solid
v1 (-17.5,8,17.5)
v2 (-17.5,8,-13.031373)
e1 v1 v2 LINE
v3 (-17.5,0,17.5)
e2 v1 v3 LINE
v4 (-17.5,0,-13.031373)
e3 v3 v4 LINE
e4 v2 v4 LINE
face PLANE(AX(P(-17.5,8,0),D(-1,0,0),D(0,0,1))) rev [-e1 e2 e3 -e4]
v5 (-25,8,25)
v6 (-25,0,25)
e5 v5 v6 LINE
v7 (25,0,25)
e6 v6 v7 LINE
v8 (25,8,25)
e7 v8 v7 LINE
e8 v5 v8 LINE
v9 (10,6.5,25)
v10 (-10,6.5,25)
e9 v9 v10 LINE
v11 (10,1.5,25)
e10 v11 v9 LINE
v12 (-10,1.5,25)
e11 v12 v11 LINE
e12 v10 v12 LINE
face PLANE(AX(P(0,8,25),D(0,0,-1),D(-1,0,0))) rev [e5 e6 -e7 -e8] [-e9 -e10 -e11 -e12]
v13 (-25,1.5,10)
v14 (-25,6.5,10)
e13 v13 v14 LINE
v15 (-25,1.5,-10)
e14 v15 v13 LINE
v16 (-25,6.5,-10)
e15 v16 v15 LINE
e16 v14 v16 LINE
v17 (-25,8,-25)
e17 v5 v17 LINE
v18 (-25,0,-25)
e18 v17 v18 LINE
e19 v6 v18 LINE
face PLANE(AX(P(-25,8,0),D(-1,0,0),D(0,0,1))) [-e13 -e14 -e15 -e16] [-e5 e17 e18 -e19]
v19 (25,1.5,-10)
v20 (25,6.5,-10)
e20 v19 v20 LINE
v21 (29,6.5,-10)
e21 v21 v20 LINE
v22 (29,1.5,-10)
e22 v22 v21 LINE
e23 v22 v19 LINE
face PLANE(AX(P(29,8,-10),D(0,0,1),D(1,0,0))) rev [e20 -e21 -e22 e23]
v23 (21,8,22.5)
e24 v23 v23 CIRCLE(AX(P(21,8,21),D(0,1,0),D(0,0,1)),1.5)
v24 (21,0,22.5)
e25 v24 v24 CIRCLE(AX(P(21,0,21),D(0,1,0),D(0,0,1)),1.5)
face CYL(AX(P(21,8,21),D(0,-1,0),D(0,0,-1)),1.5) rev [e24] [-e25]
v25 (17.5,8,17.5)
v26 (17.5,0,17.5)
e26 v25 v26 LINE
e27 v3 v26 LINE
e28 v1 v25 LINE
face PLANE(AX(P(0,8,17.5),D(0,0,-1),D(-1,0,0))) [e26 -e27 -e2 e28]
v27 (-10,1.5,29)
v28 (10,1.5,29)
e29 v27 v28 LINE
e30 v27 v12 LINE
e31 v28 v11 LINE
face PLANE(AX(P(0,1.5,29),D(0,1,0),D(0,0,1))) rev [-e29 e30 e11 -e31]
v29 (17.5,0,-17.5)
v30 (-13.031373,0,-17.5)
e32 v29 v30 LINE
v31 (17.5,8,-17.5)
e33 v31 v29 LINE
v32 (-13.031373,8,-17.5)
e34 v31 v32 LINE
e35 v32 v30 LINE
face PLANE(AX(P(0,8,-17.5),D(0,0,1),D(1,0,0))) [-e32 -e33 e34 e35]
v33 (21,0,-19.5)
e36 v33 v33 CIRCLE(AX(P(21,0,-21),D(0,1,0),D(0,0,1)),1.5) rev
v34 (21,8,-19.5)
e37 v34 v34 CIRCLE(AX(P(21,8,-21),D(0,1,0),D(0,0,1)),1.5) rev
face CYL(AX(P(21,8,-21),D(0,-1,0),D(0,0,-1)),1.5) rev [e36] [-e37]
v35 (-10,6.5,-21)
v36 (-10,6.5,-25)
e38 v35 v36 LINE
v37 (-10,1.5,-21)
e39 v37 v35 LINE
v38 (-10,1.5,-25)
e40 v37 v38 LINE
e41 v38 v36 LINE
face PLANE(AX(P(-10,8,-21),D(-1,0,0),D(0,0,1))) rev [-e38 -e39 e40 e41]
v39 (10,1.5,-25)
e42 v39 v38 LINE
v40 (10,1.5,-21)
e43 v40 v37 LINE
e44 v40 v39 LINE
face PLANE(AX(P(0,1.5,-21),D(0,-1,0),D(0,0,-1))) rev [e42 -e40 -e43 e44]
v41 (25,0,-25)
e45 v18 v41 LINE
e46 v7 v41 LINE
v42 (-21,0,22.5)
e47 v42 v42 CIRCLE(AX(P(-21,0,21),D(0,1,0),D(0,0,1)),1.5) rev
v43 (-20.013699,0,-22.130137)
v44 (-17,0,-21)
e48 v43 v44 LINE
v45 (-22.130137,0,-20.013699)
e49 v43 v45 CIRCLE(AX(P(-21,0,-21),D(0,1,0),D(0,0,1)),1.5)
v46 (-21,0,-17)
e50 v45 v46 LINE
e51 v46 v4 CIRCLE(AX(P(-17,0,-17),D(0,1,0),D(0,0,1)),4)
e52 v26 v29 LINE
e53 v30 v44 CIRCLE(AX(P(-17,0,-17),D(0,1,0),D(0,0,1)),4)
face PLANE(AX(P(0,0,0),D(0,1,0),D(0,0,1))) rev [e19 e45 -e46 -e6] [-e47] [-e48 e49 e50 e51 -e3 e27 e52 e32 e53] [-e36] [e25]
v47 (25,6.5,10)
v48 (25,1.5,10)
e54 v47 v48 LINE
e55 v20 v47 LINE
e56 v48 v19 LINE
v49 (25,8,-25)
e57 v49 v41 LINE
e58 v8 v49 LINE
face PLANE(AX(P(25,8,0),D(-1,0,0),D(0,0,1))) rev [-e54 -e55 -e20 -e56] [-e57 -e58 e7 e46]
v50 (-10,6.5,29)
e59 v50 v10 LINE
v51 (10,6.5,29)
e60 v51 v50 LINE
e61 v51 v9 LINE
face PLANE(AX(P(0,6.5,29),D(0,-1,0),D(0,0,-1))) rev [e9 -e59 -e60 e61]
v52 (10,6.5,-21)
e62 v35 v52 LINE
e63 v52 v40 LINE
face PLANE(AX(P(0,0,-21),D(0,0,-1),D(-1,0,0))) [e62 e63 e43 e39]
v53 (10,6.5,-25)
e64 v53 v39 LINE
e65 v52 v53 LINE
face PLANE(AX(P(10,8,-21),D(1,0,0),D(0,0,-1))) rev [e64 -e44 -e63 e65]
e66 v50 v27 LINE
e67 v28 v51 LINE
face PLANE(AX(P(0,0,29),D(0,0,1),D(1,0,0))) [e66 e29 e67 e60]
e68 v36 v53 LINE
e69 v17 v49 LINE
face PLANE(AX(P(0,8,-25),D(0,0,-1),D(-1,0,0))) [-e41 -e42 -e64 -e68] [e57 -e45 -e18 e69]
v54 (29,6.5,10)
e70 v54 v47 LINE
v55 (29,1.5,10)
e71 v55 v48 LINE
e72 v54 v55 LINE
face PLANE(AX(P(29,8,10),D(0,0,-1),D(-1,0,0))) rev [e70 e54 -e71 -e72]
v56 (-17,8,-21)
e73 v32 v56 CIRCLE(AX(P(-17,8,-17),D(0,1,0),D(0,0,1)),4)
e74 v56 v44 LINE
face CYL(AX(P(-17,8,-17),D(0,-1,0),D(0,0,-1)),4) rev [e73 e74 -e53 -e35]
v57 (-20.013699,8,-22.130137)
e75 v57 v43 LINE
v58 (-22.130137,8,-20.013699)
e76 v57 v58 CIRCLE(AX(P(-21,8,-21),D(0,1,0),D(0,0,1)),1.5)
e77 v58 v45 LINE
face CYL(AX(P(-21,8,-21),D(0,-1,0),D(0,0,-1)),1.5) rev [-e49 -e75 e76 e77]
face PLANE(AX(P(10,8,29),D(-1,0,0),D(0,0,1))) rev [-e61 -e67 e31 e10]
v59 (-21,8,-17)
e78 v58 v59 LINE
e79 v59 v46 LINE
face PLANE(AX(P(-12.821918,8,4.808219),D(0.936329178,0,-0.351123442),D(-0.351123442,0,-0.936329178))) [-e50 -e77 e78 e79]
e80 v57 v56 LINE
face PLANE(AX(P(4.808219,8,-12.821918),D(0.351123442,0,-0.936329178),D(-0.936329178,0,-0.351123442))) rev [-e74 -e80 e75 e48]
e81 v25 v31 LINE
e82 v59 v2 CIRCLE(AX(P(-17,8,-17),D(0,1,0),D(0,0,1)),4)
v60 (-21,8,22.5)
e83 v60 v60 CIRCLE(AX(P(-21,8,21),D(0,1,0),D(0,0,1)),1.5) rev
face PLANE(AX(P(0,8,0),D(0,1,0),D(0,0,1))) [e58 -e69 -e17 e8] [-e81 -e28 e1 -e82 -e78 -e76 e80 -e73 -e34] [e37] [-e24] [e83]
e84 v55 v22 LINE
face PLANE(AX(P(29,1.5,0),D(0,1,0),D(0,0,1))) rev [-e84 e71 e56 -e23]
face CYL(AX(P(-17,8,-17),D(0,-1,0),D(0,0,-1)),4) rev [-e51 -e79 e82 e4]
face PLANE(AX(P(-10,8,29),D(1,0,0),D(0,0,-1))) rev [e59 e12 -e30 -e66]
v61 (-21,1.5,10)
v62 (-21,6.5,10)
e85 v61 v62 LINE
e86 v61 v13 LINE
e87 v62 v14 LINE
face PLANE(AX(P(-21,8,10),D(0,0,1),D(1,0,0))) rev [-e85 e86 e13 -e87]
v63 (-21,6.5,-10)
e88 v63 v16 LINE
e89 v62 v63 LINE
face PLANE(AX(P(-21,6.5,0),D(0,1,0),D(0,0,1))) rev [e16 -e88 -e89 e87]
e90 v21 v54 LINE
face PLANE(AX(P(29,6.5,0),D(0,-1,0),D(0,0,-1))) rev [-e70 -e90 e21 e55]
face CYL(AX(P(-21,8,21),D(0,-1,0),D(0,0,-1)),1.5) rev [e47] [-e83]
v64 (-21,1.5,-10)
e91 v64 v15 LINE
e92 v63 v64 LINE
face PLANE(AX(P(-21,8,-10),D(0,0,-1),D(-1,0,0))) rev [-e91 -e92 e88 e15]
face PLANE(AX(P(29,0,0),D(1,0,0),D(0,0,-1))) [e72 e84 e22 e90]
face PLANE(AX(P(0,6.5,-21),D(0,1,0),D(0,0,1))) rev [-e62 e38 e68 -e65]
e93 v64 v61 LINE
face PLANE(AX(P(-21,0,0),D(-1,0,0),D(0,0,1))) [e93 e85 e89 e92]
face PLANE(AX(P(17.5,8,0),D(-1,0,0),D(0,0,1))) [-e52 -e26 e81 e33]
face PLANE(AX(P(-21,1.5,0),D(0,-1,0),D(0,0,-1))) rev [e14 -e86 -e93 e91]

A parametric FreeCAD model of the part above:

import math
import FreeCAD as App
import Part
import Sketcher
from FreeCAD import Vector
Q = App.Units.Quantity


def add_polygon(sketch, points):
    """Adds a closed chain of lines whose ends are joined by coincident constraints."""
    first, n = sketch.GeometryCount, len(points)
    for a, b in zip(points, points[1:] + points[:1]):
        sketch.addGeometry(Part.LineSegment(App.Vector(*a, 0), App.Vector(*b, 0)), False)
    for i in range(n):
        sketch.addConstraint(Sketcher.Constraint("Coincident", first + i, 2, first + (i + 1) % n, 1))

doc = App.newDocument("Part")
body = doc.addObject("PartDesign::Body", "Body")

sketch1 = body.newObject("Sketcher::SketchObject", "Sketch")
sketch1.AttachmentSupport = (doc.getObject("XZ_Plane"), [""])
sketch1.MapMode = "FlatFace"
add_polygon(sketch1, [(-25, -25), (-25, 25), (25, 25), (25, -25)])
sketch1.addGeometry(Part.Circle(Vector(-21, 21, 0), Vector(0, 0, 1), 1.5), False)
sketch1.addGeometry(Part.Circle(Vector(21, 21, 0), Vector(0, 0, 1), 1.5), False)
sketch1.addGeometry(Part.ArcOfCircle(Part.Circle(Vector(-17, -17, 0), Vector(0, 0, 1), 4), math.radians(-90), math.radians(-7.180756)), False)
sketch1.addGeometry(Part.LineSegment(Vector(-13.031373, -17.5, 0), Vector(17.5, -17.5, 0)), False)
sketch1.addGeometry(Part.LineSegment(Vector(17.5, -17.5, 0), Vector(17.5, 17.5, 0)), False)
sketch1.addGeometry(Part.LineSegment(Vector(17.5, 17.5, 0), Vector(-17.5, 17.5, 0)), False)
sketch1.addGeometry(Part.LineSegment(Vector(-17.5, 17.5, 0), Vector(-17.5, -13.031373, 0)), False)
sketch1.addGeometry(Part.ArcOfCircle(Part.Circle(Vector(-17, -17, 0), Vector(0, 0, 1), 4), math.radians(97.180756), math.radians(180)), False)
sketch1.addGeometry(Part.LineSegment(Vector(-21, -17, 0), Vector(-22.130137, -20.013699, 0)), False)
sketch1.addGeometry(Part.ArcOfCircle(Part.Circle(Vector(-21, -21, 0), Vector(0, 0, 1), 1.5), math.radians(138.88791), math.radians(311.11209)), False)
sketch1.addGeometry(Part.LineSegment(Vector(-20.013699, -22.130137, 0), Vector(-17, -21, 0)), False)
sketch1.addGeometry(Part.Circle(Vector(21, -21, 0), Vector(0, 0, 1), 1.5), False)
sketch1.addConstraint(Sketcher.Constraint("Coincident", 6, 2, 7, 1))
sketch1.addConstraint(Sketcher.Constraint("Coincident", 7, 2, 8, 1))
sketch1.addConstraint(Sketcher.Constraint("Coincident", 8, 2, 9, 1))
sketch1.addConstraint(Sketcher.Constraint("Coincident", 9, 2, 10, 1))
sketch1.addConstraint(Sketcher.Constraint("Coincident", 10, 2, 11, 1))
sketch1.addConstraint(Sketcher.Constraint("Coincident", 11, 2, 12, 1))
sketch1.addConstraint(Sketcher.Constraint("Coincident", 12, 2, 13, 1))
sketch1.addConstraint(Sketcher.Constraint("Coincident", 13, 2, 14, 1))
sketch1.addConstraint(Sketcher.Constraint("Coincident", 14, 2, 6, 1))
sketch1.addConstraint(Sketcher.Constraint("Vertical", 0))
sketch1.addConstraint(Sketcher.Constraint("Horizontal", 1))
sketch1.addConstraint(Sketcher.Constraint("Vertical", 2))
sketch1.addConstraint(Sketcher.Constraint("Horizontal", 3))
sketch1.addConstraint(Sketcher.Constraint("Horizontal", 7))
sketch1.addConstraint(Sketcher.Constraint("Vertical", 8))
sketch1.addConstraint(Sketcher.Constraint("Horizontal", 9))
sketch1.addConstraint(Sketcher.Constraint("Vertical", 10))
sketch1.addConstraint(Sketcher.Constraint("Coincident", 11, 3, 6, 3))
sketch1.addConstraint(Sketcher.Constraint("Equal", 4, 5))
sketch1.addConstraint(Sketcher.Constraint("Equal", 6, 11))
sketch1.addConstraint(Sketcher.Constraint("Equal", 5, 13))
sketch1.addConstraint(Sketcher.Constraint("Equal", 13, 15))
sketch1.addConstraint(Sketcher.Constraint("Symmetric", 5, 3, 13, 3, -1, 1))
sketch1.addConstraint(Sketcher.Constraint("Symmetric", 4, 3, 15, 3, -1, 1))
sketch1.addConstraint(Sketcher.Constraint("Symmetric", 0, 2, 2, 2, -1, 1))
sketch1.addConstraint(Sketcher.Constraint("Symmetric", 7, 2, 9, 2, -1, 1))
sketch1.addConstraint(Sketcher.Constraint("Symmetric", 4, 3, 5, 3, -2))
sketch1.addConstraint(Sketcher.Constraint("Horizontal", 6, 3, 11, 2))
sketch1.addConstraint(Sketcher.Constraint("Horizontal", 15, 3, 14, 2))
sketch1.addConstraint(Sketcher.Constraint("Vertical", 13, 3, 11, 2))
sketch1.addConstraint(Sketcher.Constraint("Vertical", 11, 3, 14, 2))
sketch1.addConstraint(Sketcher.Constraint("Equal", 3, 0))
sketch1.addConstraint(Sketcher.Constraint("Equal", 9, 8))
sketch1.addConstraint(Sketcher.Constraint("Equal", 7, 10))
sketch1.addConstraint(Sketcher.Constraint("Equal", 12, 14))
sketch1.addConstraint(Sketcher.Constraint("Diameter", 4, Q("3 mm")))
sketch1.addConstraint(Sketcher.Constraint("Radius", 6, Q("4 mm")))
sketch1.addConstraint(Sketcher.Constraint("DistanceX", 1, 1, 1, 2, Q("50 mm")))
sketch1.addConstraint(Sketcher.Constraint("DistanceX", 9, 2, 9, 1, Q("35 mm")))
sketch1.addConstraint(Sketcher.Constraint("DistanceX", 4, 3, -1, 1, Q("21 mm")))
sketch1.addConstraint(Sketcher.Constraint("DistanceY", 12, 2, -1, 1, Q("20.013699 mm")))
pad1 = body.newObject("PartDesign::Pad", "Pad")
pad1.Profile = sketch1
pad1.Length = 8
pad1.Reversed = True

sketch2 = body.newObject("Sketcher::SketchObject", "Sketch001")
sketch2.AttachmentSupport = (doc.getObject("XY_Plane"), [""])
sketch2.MapMode = "FlatFace"
sketch2.AttachmentOffset = App.Placement(Vector(0, 0, -25), App.Rotation())
add_polygon(sketch2, [(-10, 6.5), (-10, 1.5), (10, 1.5), (10, 6.5)])
sketch2.addConstraint(Sketcher.Constraint("Vertical", 0))
sketch2.addConstraint(Sketcher.Constraint("Horizontal", 1))
sketch2.addConstraint(Sketcher.Constraint("Vertical", 2))
sketch2.addConstraint(Sketcher.Constraint("Horizontal", 3))
sketch2.addConstraint(Sketcher.Constraint("DistanceX", 1, 1, 1, 2, Q("20 mm")))
sketch2.addConstraint(Sketcher.Constraint("DistanceY", 0, 2, 0, 1, Q("5 mm")))
sketch2.addConstraint(Sketcher.Constraint("DistanceX", 0, 2, -1, 1, Q("10 mm")))
sketch2.addConstraint(Sketcher.Constraint("DistanceY", -1, 1, 0, 2, Q("1.5 mm")))
pocket1 = body.newObject("PartDesign::Pocket", "Pocket")
pocket1.Profile = sketch2
pocket1.Length = 4
pocket1.Reversed = True

sketch3 = body.newObject("Sketcher::SketchObject", "Sketch002")
sketch3.AttachmentSupport = (doc.getObject("XY_Plane"), [""])
sketch3.MapMode = "FlatFace"
sketch3.AttachmentOffset = App.Placement(Vector(0, 0, 25), App.Rotation())
add_polygon(sketch3, [(-10, 6.5), (-10, 1.5), (10, 1.5), (10, 6.5)])
sketch3.addConstraint(Sketcher.Constraint("Vertical", 0))
sketch3.addConstraint(Sketcher.Constraint("Horizontal", 1))
sketch3.addConstraint(Sketcher.Constraint("Vertical", 2))
sketch3.addConstraint(Sketcher.Constraint("Horizontal", 3))
sketch3.addConstraint(Sketcher.Constraint("DistanceX", 1, 1, 1, 2, Q("20 mm")))
sketch3.addConstraint(Sketcher.Constraint("DistanceY", 0, 2, 0, 1, Q("5 mm")))
sketch3.addConstraint(Sketcher.Constraint("DistanceX", 0, 2, -1, 1, Q("10 mm")))
sketch3.addConstraint(Sketcher.Constraint("DistanceY", -1, 1, 0, 2, Q("1.5 mm")))
pad2 = body.newObject("PartDesign::Pad", "Pad001")
pad2.Profile = sketch3
pad2.Length = 4

sketch4 = body.newObject("Sketcher::SketchObject", "Sketch003")
sketch4.AttachmentSupport = (doc.getObject("YZ_Plane"), [""])
sketch4.MapMode = "FlatFace"
sketch4.AttachmentOffset = App.Placement(Vector(0, 0, 25), App.Rotation())
add_polygon(sketch4, [(6.5, 10), (1.5, 10), (1.5, -10), (6.5, -10)])
sketch4.addConstraint(Sketcher.Constraint("Horizontal", 0))
sketch4.addConstraint(Sketcher.Constraint("Vertical", 1))
sketch4.addConstraint(Sketcher.Constraint("Horizontal", 2))
sketch4.addConstraint(Sketcher.Constraint("Vertical", 3))
sketch4.addConstraint(Sketcher.Constraint("DistanceX", 0, 2, 0, 1, Q("5 mm")))
sketch4.addConstraint(Sketcher.Constraint("DistanceY", 1, 2, 1, 1, Q("20 mm")))
sketch4.addConstraint(Sketcher.Constraint("DistanceY", -1, 1, 0, 2, Q("10 mm")))
sketch4.addConstraint(Sketcher.Constraint("DistanceX", -1, 1, 0, 2, Q("1.5 mm")))
pad3 = body.newObject("PartDesign::Pad", "Pad002")
pad3.Profile = sketch4
pad3.Length = 4

sketch5 = body.newObject("Sketcher::SketchObject", "Sketch004")
sketch5.AttachmentSupport = (doc.getObject("YZ_Plane"), [""])
sketch5.MapMode = "FlatFace"
sketch5.AttachmentOffset = App.Placement(Vector(0, 0, -25), App.Rotation())
add_polygon(sketch5, [(6.5, 10), (1.5, 10), (1.5, -10), (6.5, -10)])
sketch5.addConstraint(Sketcher.Constraint("Horizontal", 0))
sketch5.addConstraint(Sketcher.Constraint("Vertical", 1))
sketch5.addConstraint(Sketcher.Constraint("Horizontal", 2))
sketch5.addConstraint(Sketcher.Constraint("Vertical", 3))
sketch5.addConstraint(Sketcher.Constraint("DistanceX", 0, 2, 0, 1, Q("5 mm")))
sketch5.addConstraint(Sketcher.Constraint("DistanceY", 1, 2, 1, 1, Q("20 mm")))
sketch5.addConstraint(Sketcher.Constraint("DistanceY", -1, 1, 0, 2, Q("10 mm")))
sketch5.addConstraint(Sketcher.Constraint("DistanceX", -1, 1, 0, 2, Q("1.5 mm")))
pocket2 = body.newObject("PartDesign::Pocket", "Pocket001")
pocket2.Profile = sketch5
pocket2.Length = 4
pocket2.Reversed = True

doc.recompute()
